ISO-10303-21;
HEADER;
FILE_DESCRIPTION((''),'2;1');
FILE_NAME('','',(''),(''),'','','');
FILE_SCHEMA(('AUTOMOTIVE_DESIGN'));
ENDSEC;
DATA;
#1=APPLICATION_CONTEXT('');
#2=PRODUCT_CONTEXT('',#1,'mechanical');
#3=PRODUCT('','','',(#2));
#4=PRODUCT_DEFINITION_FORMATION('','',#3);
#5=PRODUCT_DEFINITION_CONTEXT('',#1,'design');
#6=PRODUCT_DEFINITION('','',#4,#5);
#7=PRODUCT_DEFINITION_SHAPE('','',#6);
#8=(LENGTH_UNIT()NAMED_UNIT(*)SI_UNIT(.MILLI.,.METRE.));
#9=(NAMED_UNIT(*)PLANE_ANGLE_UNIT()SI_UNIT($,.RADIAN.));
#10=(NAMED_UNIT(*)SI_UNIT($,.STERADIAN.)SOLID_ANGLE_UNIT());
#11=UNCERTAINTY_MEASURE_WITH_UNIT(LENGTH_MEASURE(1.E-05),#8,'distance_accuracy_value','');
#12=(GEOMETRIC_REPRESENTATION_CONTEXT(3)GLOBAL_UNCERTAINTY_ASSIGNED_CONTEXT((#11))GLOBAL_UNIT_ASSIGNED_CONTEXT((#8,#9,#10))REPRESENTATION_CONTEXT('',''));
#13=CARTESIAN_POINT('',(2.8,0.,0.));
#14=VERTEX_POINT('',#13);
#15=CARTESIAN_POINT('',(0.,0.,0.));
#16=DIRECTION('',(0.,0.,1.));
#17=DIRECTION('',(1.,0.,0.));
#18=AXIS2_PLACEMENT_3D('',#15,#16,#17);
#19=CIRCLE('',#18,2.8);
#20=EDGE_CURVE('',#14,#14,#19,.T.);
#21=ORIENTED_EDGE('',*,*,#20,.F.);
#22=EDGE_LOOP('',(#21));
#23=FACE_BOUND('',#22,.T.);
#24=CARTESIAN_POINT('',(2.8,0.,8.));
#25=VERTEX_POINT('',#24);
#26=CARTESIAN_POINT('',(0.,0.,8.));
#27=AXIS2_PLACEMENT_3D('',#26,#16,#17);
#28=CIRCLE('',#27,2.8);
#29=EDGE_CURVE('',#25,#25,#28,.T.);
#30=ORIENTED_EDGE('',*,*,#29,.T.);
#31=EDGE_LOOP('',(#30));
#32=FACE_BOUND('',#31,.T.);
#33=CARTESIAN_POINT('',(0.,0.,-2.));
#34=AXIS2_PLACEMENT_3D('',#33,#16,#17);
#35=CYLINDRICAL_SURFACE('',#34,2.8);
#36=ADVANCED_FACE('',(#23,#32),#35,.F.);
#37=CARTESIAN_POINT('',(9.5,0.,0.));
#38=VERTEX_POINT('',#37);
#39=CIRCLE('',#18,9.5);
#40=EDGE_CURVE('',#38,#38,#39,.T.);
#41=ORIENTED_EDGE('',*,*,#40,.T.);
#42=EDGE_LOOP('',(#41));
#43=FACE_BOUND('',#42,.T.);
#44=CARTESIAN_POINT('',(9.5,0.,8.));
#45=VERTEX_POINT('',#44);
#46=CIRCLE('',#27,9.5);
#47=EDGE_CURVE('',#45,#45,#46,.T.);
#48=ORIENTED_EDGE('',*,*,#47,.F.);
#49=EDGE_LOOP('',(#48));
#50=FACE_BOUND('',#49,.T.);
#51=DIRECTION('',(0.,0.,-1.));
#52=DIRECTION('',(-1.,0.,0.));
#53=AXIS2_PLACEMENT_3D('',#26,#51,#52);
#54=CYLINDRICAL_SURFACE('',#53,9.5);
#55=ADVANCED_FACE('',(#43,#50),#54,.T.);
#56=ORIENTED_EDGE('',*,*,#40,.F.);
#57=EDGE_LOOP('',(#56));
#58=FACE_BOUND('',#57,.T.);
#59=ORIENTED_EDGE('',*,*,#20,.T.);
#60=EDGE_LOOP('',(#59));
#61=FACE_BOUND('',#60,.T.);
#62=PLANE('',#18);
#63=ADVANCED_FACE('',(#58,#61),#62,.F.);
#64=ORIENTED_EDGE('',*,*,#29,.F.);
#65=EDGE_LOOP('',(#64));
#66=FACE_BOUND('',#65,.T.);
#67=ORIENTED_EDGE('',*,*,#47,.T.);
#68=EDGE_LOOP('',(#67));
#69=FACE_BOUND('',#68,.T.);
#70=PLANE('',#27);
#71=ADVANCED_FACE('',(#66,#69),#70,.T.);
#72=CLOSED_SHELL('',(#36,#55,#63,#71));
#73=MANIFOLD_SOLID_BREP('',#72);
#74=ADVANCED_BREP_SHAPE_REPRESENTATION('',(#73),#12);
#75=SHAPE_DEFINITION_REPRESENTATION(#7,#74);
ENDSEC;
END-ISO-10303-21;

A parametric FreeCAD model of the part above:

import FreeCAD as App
import Part
import Sketcher
from FreeCAD import Vector

doc = App.newDocument("Part")
body = doc.addObject("PartDesign::Body", "Body")

sketch1 = doc.addObject("Sketcher::SketchObject", "Sketch")
body.addObject(sketch1)
sketch1.AttachmentSupport = (doc.XY_Plane, [""])
sketch1.MapMode = "FlatFace"
sketch1.addGeometry(Part.Circle(Vector(0, 0, 0), Vector(0, 0, 1), 9.5), False)
sketch1.addConstraint(Sketcher.Constraint("Coincident", 0, 3, -1, 1))
sketch1.addConstraint(Sketcher.Constraint("Diameter", 0, 19.0))
pad1 = doc.addObject("PartDesign::Pad", "Pad")
body.addObject(pad1)
pad1.Profile = sketch1
pad1.Length = 8

sketch2 = doc.addObject("Sketcher::SketchObject", "Sketch001")
body.addObject(sketch2)
sketch2.AttachmentSupport = (doc.XY_Plane, [""])
sketch2.MapMode = "FlatFace"
sketch2.AttachmentOffset = App.Placement(Vector(0, 0, 8), App.Rotation())
sketch2.addGeometry(Part.Circle(Vector(0, 0, 0), Vector(0, 0, 1), 2.8), False)
sketch2.addConstraint(Sketcher.Constraint("Coincident", 0, 3, -1, 1))
sketch2.addConstraint(Sketcher.Constraint("Diameter", 0, 5.6))
pocket1 = doc.addObject("PartDesign::Pocket", "Pocket")
body.addObject(pocket1)
pocket1.Profile = sketch2
pocket1.Length = 10

doc.recompute()
